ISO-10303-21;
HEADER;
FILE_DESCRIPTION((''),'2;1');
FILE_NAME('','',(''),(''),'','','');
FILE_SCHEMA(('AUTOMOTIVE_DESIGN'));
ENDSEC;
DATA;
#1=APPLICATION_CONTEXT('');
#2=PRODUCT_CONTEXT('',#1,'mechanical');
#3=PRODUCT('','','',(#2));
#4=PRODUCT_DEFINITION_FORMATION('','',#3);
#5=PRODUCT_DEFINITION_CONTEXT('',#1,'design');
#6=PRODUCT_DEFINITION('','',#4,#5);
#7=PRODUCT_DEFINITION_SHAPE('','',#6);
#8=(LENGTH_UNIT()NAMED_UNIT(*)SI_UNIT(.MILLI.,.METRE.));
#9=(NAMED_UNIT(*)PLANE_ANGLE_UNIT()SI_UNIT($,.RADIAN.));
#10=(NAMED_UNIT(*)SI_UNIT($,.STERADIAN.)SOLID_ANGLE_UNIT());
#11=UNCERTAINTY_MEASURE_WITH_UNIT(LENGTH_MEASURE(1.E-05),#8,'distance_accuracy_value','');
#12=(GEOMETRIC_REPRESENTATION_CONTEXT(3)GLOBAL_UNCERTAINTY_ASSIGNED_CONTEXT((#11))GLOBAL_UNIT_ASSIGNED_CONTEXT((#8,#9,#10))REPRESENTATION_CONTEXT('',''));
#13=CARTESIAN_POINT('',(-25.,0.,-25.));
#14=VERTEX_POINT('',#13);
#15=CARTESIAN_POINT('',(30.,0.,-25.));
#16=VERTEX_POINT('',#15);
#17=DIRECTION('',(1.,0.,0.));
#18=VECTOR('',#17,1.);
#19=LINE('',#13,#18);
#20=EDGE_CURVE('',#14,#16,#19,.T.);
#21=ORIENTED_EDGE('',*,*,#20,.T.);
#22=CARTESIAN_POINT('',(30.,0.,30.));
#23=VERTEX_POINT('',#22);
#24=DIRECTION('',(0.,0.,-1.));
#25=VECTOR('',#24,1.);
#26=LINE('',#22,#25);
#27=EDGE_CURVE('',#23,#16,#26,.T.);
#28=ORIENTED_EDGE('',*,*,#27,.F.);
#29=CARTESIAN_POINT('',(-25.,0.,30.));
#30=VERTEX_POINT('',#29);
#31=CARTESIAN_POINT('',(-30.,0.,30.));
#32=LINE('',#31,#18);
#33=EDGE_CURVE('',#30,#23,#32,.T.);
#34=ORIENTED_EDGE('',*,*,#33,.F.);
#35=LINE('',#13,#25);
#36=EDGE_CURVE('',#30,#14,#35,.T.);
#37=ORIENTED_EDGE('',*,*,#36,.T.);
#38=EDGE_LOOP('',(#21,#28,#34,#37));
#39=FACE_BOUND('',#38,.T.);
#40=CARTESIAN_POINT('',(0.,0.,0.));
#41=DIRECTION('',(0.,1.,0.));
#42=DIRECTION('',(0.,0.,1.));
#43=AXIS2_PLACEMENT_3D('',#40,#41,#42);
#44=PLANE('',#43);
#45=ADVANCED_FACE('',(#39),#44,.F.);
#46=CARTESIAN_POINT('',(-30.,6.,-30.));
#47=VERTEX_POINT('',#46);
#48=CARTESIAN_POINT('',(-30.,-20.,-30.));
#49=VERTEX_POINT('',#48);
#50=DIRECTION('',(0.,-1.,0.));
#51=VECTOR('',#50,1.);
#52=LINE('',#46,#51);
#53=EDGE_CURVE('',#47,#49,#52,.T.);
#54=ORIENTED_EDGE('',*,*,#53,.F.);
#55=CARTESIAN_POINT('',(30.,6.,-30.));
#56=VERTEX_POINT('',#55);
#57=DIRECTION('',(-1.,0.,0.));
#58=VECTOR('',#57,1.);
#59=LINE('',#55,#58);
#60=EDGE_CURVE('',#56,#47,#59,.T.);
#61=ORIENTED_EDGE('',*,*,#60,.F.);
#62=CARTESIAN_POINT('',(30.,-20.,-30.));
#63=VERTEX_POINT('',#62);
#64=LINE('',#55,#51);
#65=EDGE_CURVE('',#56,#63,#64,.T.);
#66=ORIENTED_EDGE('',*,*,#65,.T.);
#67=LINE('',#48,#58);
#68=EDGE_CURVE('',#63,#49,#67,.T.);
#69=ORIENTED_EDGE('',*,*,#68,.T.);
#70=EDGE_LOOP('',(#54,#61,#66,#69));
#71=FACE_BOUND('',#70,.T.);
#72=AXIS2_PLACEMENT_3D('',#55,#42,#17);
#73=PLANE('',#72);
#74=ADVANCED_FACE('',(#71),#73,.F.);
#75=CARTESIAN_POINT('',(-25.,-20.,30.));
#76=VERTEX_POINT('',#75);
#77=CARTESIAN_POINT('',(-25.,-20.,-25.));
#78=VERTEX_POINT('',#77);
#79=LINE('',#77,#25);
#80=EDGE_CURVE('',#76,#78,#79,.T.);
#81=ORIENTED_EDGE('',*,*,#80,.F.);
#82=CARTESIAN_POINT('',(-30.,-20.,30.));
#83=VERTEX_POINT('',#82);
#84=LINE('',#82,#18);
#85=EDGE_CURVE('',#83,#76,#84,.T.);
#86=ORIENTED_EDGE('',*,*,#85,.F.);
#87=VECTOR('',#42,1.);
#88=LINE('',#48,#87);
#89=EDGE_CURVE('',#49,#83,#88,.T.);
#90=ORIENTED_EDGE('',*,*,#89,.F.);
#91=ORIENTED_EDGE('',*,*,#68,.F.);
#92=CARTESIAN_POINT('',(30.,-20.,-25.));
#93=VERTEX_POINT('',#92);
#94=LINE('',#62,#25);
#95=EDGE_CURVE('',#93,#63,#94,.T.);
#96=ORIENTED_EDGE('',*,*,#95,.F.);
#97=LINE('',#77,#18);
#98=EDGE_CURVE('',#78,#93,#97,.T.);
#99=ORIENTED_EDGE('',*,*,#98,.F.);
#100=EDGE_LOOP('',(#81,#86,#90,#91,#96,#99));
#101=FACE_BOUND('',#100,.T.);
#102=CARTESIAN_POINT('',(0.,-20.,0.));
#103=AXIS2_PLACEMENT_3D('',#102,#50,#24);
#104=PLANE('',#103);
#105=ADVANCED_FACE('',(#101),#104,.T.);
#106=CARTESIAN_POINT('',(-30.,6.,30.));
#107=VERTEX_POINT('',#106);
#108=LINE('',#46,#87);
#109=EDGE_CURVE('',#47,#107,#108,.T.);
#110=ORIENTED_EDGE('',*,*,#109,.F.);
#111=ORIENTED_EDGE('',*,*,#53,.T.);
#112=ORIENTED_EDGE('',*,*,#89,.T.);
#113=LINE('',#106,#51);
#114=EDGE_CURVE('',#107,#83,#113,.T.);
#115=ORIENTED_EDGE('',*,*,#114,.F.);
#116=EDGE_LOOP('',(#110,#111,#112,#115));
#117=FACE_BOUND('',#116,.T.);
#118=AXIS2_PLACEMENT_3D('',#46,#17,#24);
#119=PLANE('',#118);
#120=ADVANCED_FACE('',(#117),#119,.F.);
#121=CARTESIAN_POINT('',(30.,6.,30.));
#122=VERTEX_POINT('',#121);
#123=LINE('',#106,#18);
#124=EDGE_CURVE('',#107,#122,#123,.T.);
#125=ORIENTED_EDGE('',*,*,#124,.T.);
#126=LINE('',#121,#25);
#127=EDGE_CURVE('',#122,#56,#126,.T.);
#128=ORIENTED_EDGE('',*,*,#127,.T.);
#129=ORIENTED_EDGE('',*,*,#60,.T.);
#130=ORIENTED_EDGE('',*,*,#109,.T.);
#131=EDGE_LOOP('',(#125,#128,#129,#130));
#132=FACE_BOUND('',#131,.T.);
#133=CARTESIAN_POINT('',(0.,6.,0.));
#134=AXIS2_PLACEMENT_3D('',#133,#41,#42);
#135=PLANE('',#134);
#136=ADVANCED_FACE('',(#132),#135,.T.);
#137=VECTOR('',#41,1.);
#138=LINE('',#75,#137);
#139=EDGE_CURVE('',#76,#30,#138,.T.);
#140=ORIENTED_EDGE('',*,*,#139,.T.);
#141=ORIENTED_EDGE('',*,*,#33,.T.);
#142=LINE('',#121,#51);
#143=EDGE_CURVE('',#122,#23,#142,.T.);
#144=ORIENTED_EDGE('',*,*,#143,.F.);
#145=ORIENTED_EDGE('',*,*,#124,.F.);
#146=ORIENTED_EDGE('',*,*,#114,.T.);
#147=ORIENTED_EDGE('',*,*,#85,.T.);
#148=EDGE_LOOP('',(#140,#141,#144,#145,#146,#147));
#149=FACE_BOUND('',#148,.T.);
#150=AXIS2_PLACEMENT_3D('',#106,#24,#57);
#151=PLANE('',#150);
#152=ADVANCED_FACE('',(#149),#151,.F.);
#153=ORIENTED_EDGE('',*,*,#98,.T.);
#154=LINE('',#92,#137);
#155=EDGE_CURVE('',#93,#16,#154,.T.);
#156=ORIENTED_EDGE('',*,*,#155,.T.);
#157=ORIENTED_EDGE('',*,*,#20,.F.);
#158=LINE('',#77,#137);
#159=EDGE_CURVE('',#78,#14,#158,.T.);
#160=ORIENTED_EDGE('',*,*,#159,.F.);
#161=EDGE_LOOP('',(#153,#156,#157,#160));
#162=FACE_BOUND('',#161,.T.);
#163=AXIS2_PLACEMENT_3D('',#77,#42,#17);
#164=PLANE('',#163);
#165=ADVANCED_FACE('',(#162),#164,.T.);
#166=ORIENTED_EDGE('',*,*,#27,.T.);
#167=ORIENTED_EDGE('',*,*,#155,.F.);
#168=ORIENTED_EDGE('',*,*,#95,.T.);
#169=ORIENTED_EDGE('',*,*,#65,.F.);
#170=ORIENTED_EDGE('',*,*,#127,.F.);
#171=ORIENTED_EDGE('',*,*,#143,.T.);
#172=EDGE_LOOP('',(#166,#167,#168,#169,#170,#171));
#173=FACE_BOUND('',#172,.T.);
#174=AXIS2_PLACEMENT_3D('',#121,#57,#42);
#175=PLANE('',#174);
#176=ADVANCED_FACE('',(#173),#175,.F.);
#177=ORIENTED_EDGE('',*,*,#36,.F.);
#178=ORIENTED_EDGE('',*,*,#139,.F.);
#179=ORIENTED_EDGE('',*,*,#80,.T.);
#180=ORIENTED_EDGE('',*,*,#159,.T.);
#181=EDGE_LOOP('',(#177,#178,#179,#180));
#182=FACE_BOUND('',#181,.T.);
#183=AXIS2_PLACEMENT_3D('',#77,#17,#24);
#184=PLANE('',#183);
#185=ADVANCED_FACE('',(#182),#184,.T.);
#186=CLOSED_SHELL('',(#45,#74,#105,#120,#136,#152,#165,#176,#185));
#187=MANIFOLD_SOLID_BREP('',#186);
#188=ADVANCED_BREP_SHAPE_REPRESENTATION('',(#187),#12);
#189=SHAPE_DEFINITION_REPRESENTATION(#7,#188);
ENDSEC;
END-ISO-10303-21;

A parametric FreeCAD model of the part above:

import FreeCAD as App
import Part
import Sketcher
from FreeCAD import Vector

doc = App.newDocument("Part")
body = doc.addObject("PartDesign::Body", "Body")

sketch1 = doc.addObject("Sketcher::SketchObject", "Sketch")
body.addObject(sketch1)
sketch1.AttachmentSupport = (doc.XZ_Plane, [""])
sketch1.MapMode = "FlatFace"
sketch1.addGeometry([
    Part.LineSegment(Vector(-30, -30, 0), Vector(-30, 30, 0)),
    Part.LineSegment(Vector(-30, 30, 0), Vector(30, 30, 0)),
    Part.LineSegment(Vector(30, 30, 0), Vector(30, -30, 0)),
    Part.LineSegment(Vector(30, -30, 0), Vector(-30, -30, 0)),
], False)
sketch1.addConstraint([
    Sketcher.Constraint("Coincident", 0, 2, 1, 1),
    Sketcher.Constraint("Coincident", 1, 2, 2, 1),
    Sketcher.Constraint("Coincident", 2, 2, 3, 1),
    Sketcher.Constraint("Coincident", 3, 2, 0, 1),
    Sketcher.Constraint("Vertical", 0),
    Sketcher.Constraint("Horizontal", 1),
    Sketcher.Constraint("Vertical", 2),
    Sketcher.Constraint("Horizontal", 3),
    Sketcher.Constraint("Symmetric", 0, 2, 2, 2, -1, 1),
    Sketcher.Constraint("Equal", 3, 0),
    Sketcher.Constraint("DistanceX", 1, 1, 1, 2, 60.0),
])
pad1 = doc.addObject("PartDesign::Pad", "Pad")
body.addObject(pad1)
pad1.Profile = sketch1
pad1.Length = 6
pad1.Reversed = True

sketch2 = doc.addObject("Sketcher::SketchObject", "Sketch001")
body.addObject(sketch2)
sketch2.AttachmentSupport = (doc.XZ_Plane, [""])
sketch2.MapMode = "FlatFace"
sketch2.addGeometry([
    Part.LineSegment(Vector(-30, -30, 0), Vector(-30, 30, 0)),
    Part.LineSegment(Vector(-30, 30, 0), Vector(-25, 30, 0)),
    Part.LineSegment(Vector(-25, 30, 0), Vector(-25, -25, 0)),
    Part.LineSegment(Vector(-25, -25, 0), Vector(30, -25, 0)),
    Part.LineSegment(Vector(30, -25, 0), Vector(30, -30, 0)),
    Part.LineSegment(Vector(30, -30, 0), Vector(-30, -30, 0)),
], False)
sketch2.addConstraint([
    Sketcher.Constraint("Coincident", 0, 2, 1, 1),
    Sketcher.Constraint("Coincident", 1, 2, 2, 1),
    Sketcher.Constraint("Coincident", 2, 2, 3, 1),
    Sketcher.Constraint("Coincident", 3, 2, 4, 1),
    Sketcher.Constraint("Coincident", 4, 2, 5, 1),
    Sketcher.Constraint("Coincident", 5, 2, 0, 1),
    Sketcher.Constraint("Vertical", 0),
    Sketcher.Constraint("Horizontal", 1),
    Sketcher.Constraint("Vertical", 2),
    Sketcher.Constraint("Horizontal", 3),
    Sketcher.Constraint("Vertical", 4),
    Sketcher.Constraint("Horizontal", 5),
    Sketcher.Constraint("Symmetric", 0, 2, 4, 2, -1, 1),
    Sketcher.Constraint("Equal", 5, 0),
    Sketcher.Constraint("Equal", 3, 2),
    Sketcher.Constraint("DistanceX", 1, 1, 1, 2, 5.0),
    Sketcher.Constraint("DistanceX", 3, 1, 3, 2, 55.0),
])
pad2 = doc.addObject("PartDesign::Pad", "Pad001")
body.addObject(pad2)
pad2.Profile = sketch2
pad2.Length = 20

doc.recompute()
